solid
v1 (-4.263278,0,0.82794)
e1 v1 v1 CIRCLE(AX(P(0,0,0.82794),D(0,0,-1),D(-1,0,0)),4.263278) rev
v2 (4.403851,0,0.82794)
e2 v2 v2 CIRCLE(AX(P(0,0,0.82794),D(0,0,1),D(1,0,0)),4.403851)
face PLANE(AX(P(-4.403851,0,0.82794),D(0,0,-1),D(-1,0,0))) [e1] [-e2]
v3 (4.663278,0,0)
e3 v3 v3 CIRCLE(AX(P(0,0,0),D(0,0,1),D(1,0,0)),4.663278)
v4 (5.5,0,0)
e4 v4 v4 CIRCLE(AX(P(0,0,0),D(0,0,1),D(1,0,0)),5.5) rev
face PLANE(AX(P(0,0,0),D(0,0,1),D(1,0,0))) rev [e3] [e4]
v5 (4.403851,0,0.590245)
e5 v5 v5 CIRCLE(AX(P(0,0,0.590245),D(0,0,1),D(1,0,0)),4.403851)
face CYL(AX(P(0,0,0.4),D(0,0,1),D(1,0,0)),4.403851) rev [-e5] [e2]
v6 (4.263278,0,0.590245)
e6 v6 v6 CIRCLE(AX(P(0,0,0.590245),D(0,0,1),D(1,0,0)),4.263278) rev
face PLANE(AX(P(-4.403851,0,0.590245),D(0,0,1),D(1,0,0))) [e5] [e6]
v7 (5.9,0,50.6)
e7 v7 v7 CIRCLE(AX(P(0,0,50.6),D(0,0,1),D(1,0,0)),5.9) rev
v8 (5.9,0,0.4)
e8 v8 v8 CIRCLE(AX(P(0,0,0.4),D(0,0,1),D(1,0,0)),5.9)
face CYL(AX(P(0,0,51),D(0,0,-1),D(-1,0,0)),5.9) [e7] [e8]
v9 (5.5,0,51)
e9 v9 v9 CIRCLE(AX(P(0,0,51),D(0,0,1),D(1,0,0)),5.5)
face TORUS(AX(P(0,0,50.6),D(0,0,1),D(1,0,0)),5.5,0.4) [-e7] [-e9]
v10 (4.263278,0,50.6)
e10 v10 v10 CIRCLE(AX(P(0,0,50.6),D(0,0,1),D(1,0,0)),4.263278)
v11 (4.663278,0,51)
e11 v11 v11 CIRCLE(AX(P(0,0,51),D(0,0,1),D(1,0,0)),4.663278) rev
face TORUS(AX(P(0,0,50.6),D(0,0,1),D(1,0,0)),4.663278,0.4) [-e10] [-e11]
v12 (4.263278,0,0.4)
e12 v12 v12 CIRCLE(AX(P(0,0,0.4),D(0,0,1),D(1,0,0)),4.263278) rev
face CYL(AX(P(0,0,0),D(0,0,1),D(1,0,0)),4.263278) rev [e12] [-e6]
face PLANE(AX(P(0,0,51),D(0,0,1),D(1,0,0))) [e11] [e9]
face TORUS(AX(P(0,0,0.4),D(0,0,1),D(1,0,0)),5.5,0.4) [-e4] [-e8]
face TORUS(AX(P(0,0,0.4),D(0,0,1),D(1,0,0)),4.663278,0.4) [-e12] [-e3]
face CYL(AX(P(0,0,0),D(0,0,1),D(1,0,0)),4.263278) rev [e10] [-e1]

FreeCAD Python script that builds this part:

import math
import FreeCAD as App
import Part
import Sketcher
Q = App.Units.Quantity


def edges_at(feature, points):
    """Names of the edges that pass closest to the given points."""
    edges = feature.Shape.Edges
    near = lambda p: min(range(len(edges)), key=lambda i: edges[i].distToShape(Part.Vertex(*p))[0])
    return sorted({f"Edge{near(p) + 1}" for p in points})


def add_polygon(sketch, points):
    """Adds a closed chain of lines whose ends are joined by coincident constraints."""
    first, n = sketch.GeometryCount, len(points)
    for a, b in zip(points, points[1:] + points[:1]):
        sketch.addGeometry(Part.LineSegment(App.Vector(*a, 0), App.Vector(*b, 0)), False)
    for i in range(n):
        sketch.addConstraint(Sketcher.Constraint("Coincident", first + i, 2, first + (i + 1) % n, 1))

doc = App.newDocument("Part")
body = doc.addObject("PartDesign::Body", "Body")

sketch1 = doc.addObject("Sketcher::SketchObject", "Sketch")
body.addObject(sketch1)
sketch1.AttachmentSupport = (doc.XY_Plane, [""])
sketch1.MapMode = "FlatFace"
sketch1.addGeometry(Part.Circle(App.Vector(0, 0, 0), App.Vector(0, 0, 1), 6), False)
sketch1.addConstraint([
    Sketcher.Constraint("Coincident", 0, 3, -1, 1),
    Sketcher.Constraint("Diameter", 0, Q("11.8 mm")),
])
pad1 = doc.addObject("PartDesign::Pad", "Pad")
body.addObject(pad1)
pad1.Profile = sketch1
pad1.Length = 51

sketch2 = doc.addObject("Sketcher::SketchObject", "Sketch001")
body.addObject(sketch2)
sketch2.AttachmentSupport = (doc.XY_Plane, [""])
sketch2.MapMode = "FlatFace"
sketch2.AttachmentOffset = App.Placement(App.Vector(0, 0, 51), App.Rotation())
sketch2.addGeometry(Part.Circle(App.Vector(0, 0, 0), App.Vector(0, 0, 1), 4.3), False)
sketch2.addConstraint([
    Sketcher.Constraint("Coincident", 0, 3, -1, 1),
    Sketcher.Constraint("Diameter", 0, Q("8.526555 mm")),
])
pocket1 = doc.addObject("PartDesign::Pocket", "Pocket")
body.addObject(pocket1)
pocket1.Profile = sketch2
pocket1.Type = "ThroughAll"
doc.recompute()

fillet = doc.addObject("PartDesign::Fillet", "Fillet")
body.addObject(fillet)
fillet.Base = (pocket1, edges_at(pocket1, [
    (-5.9, 0, 0),
    (-5.9, 0, 51),
    (-4.263, 0, 0),
    (-4.263, 0, 51),
]))
fillet.Radius = 0.4

sketch3 = doc.addObject("Sketcher::SketchObject", "Sketch002")
body.addObject(sketch3)
sketch3.AttachmentSupport = (doc.XZ_Plane, [""])
sketch3.MapMode = "FlatFace"
add_polygon(sketch3, [(-4.4, 0.59), (-4.4, 0.83), (-4.08, 0.83), (-4.08, 0.59)])
sketch3.addConstraint([
    Sketcher.Constraint("Vertical", 0),
    Sketcher.Constraint("Horizontal", 1),
    Sketcher.Constraint("Vertical", 2),
    Sketcher.Constraint("Horizontal", 3),
    Sketcher.Constraint("DistanceX", 1, 1, 1, 2, Q("0.32413 mm")),
    Sketcher.Constraint("DistanceY", 0, 1, 0, 2, Q("0.237695 mm")),
    Sketcher.Constraint("DistanceX", 0, 2, -1, 1, Q("4.403851 mm")),
    Sketcher.Constraint("DistanceY", -1, 1, 0, 2, Q("0.82794 mm")),
])

sketch4 = doc.addObject("Sketcher::SketchObject", "Sketch003")
body.addObject(sketch4)
sketch4.AttachmentSupport = (doc.XY_Plane, [""])
sketch4.MapMode = "FlatFace"
sketch4.AttachmentOffset = App.Placement(App.Vector(0, 0, 0.4), App.Rotation())
sketch4.addGeometry([
    Part.ArcOfCircle(Part.Circle(App.Vector(0, 0, 0), App.Vector(0, 0, 1), 4.3), math.radians(0), math.radians(90)),
    Part.ArcOfCircle(Part.Circle(App.Vector(0, 0, 0), App.Vector(0, 0, 1), 4.3), math.radians(90), math.radians(180)),
    Part.ArcOfCircle(Part.Circle(App.Vector(0, 0, 0), App.Vector(0, 0, 1), 4.3), math.radians(180), math.radians(270)),
    Part.ArcOfCircle(Part.Circle(App.Vector(0, 0, 0), App.Vector(0, 0, 1), 4.3), math.radians(-90), math.radians(0)),
], False)
sketch4.addConstraint([
    Sketcher.Constraint("Tangent", 0, 2, 1, 1),
    Sketcher.Constraint("Tangent", 1, 2, 2, 1),
    Sketcher.Constraint("Tangent", 2, 2, 3, 1),
    Sketcher.Constraint("Tangent", 3, 2, 0, 1),
    Sketcher.Constraint("Coincident", 0, 3, -1, 1),
    Sketcher.Constraint("Equal", 0, 1),
    Sketcher.Constraint("PointOnObject", 0, 2, -2),
    Sketcher.Constraint("PointOnObject", 1, 2, -1),
    Sketcher.Constraint("PointOnObject", 2, 2, -2),
    Sketcher.Constraint("PointOnObject", 3, 2, -1),
    Sketcher.Constraint("Radius", 0, Q("4.263278 mm")),
])
doc.recompute()

subtractivepipe = doc.addObject("PartDesign::SubtractivePipe", "SubtractivePipe")
body.addObject(subtractivepipe)
subtractivepipe.Profile = sketch3
subtractivepipe.Spine = (sketch4, ["Edge1", "Edge2", "Edge3", "Edge4"])

doc.recompute()
